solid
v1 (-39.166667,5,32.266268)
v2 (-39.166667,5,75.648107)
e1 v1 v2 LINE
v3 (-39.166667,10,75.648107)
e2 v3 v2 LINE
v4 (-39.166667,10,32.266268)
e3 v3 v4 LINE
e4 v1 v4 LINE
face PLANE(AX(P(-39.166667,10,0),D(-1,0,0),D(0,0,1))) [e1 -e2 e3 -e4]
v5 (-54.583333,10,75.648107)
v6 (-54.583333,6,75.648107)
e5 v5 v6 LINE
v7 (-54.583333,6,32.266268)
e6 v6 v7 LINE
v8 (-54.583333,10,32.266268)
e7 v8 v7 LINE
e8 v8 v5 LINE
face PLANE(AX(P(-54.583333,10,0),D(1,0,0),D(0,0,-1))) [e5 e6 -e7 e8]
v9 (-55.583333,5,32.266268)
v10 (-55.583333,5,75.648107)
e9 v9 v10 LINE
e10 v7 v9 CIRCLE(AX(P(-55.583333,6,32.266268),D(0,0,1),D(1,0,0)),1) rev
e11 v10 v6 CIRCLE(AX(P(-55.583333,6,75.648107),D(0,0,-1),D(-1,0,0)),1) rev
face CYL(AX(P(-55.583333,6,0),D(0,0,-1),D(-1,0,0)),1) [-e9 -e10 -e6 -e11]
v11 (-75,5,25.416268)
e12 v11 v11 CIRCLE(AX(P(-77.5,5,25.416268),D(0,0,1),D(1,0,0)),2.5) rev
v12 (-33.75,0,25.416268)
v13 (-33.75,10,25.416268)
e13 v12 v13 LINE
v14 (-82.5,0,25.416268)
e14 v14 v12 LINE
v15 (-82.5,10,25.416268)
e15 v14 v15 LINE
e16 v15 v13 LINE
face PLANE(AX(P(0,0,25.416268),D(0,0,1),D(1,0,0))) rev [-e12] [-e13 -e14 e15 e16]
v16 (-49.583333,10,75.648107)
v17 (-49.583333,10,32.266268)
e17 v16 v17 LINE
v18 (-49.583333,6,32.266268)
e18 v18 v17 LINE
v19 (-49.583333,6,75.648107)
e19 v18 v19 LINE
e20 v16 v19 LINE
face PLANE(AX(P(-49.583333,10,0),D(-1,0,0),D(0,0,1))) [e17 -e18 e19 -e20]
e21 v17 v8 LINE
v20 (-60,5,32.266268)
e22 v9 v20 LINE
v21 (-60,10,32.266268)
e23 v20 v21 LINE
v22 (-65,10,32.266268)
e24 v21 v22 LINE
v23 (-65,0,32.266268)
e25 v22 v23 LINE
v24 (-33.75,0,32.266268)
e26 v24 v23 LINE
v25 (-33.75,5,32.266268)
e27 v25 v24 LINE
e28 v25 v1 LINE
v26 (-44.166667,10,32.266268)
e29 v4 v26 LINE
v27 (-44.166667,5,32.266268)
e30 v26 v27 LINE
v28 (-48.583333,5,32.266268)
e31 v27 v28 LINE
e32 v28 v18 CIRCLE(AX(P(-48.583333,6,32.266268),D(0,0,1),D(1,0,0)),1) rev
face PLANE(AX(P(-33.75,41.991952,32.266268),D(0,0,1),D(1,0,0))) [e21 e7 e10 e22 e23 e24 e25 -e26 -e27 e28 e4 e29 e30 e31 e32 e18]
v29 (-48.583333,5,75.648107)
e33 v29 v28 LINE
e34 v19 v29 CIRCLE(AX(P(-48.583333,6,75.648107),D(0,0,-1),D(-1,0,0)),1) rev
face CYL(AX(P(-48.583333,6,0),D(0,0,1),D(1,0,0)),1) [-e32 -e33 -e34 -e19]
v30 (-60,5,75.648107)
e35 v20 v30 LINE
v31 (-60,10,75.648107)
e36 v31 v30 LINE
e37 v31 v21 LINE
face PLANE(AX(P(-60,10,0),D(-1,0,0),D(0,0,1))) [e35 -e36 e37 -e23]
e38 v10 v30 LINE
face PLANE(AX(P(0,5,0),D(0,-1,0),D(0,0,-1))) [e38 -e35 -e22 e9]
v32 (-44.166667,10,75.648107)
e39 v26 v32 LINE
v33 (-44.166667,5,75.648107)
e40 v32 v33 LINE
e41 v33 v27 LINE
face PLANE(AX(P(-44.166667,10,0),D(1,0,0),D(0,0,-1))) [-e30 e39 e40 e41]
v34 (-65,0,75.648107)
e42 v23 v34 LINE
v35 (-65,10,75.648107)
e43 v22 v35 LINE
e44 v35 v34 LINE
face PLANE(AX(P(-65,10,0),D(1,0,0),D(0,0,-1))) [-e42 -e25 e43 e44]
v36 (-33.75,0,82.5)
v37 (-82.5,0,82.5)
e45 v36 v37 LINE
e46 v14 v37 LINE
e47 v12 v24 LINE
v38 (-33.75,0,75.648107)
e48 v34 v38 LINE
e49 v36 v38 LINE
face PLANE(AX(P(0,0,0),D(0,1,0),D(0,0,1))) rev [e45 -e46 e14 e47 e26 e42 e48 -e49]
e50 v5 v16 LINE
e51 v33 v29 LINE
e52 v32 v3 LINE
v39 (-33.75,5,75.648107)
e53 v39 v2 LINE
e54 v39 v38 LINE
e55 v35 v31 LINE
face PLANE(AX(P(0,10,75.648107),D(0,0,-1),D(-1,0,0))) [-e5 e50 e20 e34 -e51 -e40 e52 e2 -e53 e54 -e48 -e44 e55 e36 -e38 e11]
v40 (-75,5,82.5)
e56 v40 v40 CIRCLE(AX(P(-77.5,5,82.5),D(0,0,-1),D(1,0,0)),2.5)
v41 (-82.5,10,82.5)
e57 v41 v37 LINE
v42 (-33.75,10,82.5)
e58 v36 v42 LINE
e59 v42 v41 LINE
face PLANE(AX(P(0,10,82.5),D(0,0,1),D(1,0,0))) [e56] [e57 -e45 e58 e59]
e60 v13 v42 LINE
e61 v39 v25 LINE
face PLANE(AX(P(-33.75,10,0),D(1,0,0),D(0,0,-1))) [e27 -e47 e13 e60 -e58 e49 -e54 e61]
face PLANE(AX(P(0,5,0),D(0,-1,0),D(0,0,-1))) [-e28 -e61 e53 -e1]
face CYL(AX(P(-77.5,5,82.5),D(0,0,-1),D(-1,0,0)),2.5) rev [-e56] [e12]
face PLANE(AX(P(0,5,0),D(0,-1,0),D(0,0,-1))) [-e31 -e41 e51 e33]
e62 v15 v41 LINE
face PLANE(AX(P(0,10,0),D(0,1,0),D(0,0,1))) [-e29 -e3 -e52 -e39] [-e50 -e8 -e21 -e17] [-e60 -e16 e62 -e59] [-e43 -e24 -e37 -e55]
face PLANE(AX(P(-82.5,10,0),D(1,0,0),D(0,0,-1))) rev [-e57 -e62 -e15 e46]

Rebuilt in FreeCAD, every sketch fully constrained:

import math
import FreeCAD as App
import Part
import Sketcher
from FreeCAD import Vector


def edges_at(feature, points):
    """Names of the edges that pass closest to the given points."""
    edges = feature.Shape.Edges
    near = lambda p: min(range(len(edges)), key=lambda i: edges[i].distToShape(Part.Vertex(*p))[0])
    return sorted({f"Edge{near(p) + 1}" for p in points})


def add_polygon(sketch, points):
    """Adds a closed chain of lines whose ends are joined by coincident constraints."""
    first, n = sketch.GeometryCount, len(points)
    for a, b in zip(points, points[1:] + points[:1]):
        sketch.addGeometry(Part.LineSegment(App.Vector(*a, 0), App.Vector(*b, 0)), False)
    for i in range(n):
        sketch.addConstraint(Sketcher.Constraint("Coincident", first + i, 2, first + (i + 1) % n, 1))

doc = App.newDocument("Part")
params = doc.addObject("Spreadsheet::Sheet", "Params")
for row, (alias, value) in enumerate([
    ("sketch1_diameter", "30 mm"),
    ("sketch1_radius", "16.5 mm"),
    ("sketch1_width", "10 mm"),
    ("sketch1_width2", "165 mm"),
    ("sketch1_width3", "5 mm"),
    ("pad1_length", "10 mm"),
    ("sketch2_diameter", "5 mm"),
    ("sketch3_width", "130 mm"),
    ("sketch3_height", "150 mm"),
    ("pocket2_length", "5 mm"),
    ("sketch4_width", "165 mm"),
    ("sketch4_width2", "116.25 mm"),
    ("sketch5_width", "31.25 mm"),
    ("sketch5_height", "6.85 mm"),
    ("pad2_length", "10 mm"),
    ("fillet_radius", "1 mm"),
], start=1):
    params.set(f"A{row}", alias)
    params.set(f"B{row}", "=" + value)
    params.setAlias(f"B{row}", alias)

body = doc.addObject("PartDesign::Body", "Body")

# Sketch on XZ plane
sketch1 = body.newObject("Sketcher::SketchObject", "Sketch")
sketch1.AttachmentSupport = (doc.getObject("XZ_Plane"), [""])
sketch1.MapMode = "FlatFace"
add_polygon(sketch1, [(-82.5, -82.5), (-82.5, -77.5), (-72.5, -77.5), (-72.5, -67.5), (-82.5, -67.5), (-82.5, 2.5), (-72.5, 2.5), (-72.5, 12.5), (-82.5, 12.5), (-82.5, 82.5), (82.5, 82.5), (82.5, 12.5), (72.5, 12.5), (72.5, 2.5), (82.5, 2.5), (82.5, -67.5), (72.5, -67.5), (72.5, -77.5), (82.5, -77.5), (82.5, -82.5)])  # lines 0-19
sketch1.addGeometry(Part.LineSegment(Vector(-12.9, 75.6, 0), Vector(-12.9, 10.9, 0)), False)  # 20
sketch1.addGeometry(Part.ArcOfCircle(Part.Circle(Vector(0, 0.6, 0), Vector(0, 0, 1), 16.5), math.radians(119), math.radians(142)), False)  # 21
sketch1.addGeometry(Part.LineSegment(Vector(-7.9, 15.1, 0), Vector(-7.9, 75.6, 0)), False)  # 22
sketch1.addGeometry(Part.LineSegment(Vector(-7.9, 75.6, 0), Vector(-12.9, 75.6, 0)), False)  # 23
sketch1.addGeometry(Part.LineSegment(Vector(2.5, 75.6, 0), Vector(-2.5, 75.6, 0)), False)  # 24
sketch1.addGeometry(Part.LineSegment(Vector(-2.5, 75.6, 0), Vector(-2.5, 17, 0)), False)  # 25
sketch1.addGeometry(Part.ArcOfCircle(Part.Circle(Vector(0, 0.6, 0), Vector(0, 0, 1), 16.5), math.radians(81.29), math.radians(98.71)), False)  # 26
sketch1.addGeometry(Part.LineSegment(Vector(2.5, 17, 0), Vector(2.5, 75.6, 0)), False)  # 27
sketch1.addGeometry(Part.LineSegment(Vector(12.9, 75.6, 0), Vector(7.9, 75.6, 0)), False)  # 28
sketch1.addGeometry(Part.LineSegment(Vector(7.9, 75.6, 0), Vector(7.9, 15.1, 0)), False)  # 29
sketch1.addGeometry(Part.ArcOfCircle(Part.Circle(Vector(0, 0.6, 0), Vector(0, 0, 1), 16.5), math.radians(38), math.radians(61)), False)  # 30
sketch1.addGeometry(Part.LineSegment(Vector(12.9, 10.9, 0), Vector(12.9, 75.6, 0)), False)  # 31
add_polygon(sketch1, [(-60, 75.6), (-65, 75.6), (-65, -74.4), (-60, -74.4)])  # lines 32-35
add_polygon(sketch1, [(-49.6, 75.6), (-54.6, 75.6), (-54.6, -74.4), (-49.6, -74.4)])  # lines 36-39
add_polygon(sketch1, [(-39.2, 75.6), (-44.2, 75.6), (-44.2, -74.4), (-39.2, -74.4)])  # lines 40-43
add_polygon(sketch1, [(-28.8, 75.6), (-33.8, 75.6), (-33.8, -74.4), (-28.8, -74.4)])  # lines 44-47
add_polygon(sketch1, [(-18.3, 75.6), (-23.3, 75.6), (-23.3, -74.4), (-18.3, -74.4)])  # lines 48-51
sketch1.addGeometry(Part.ArcOfCircle(Part.Circle(Vector(0, 0.6, 0), Vector(0, 0, 1), 16.5), math.radians(-142), math.radians(-119)), False)  # 52
sketch1.addGeometry(Part.LineSegment(Vector(-12.9, -9.6, 0), Vector(-12.9, -74.4, 0)), False)  # 53
sketch1.addGeometry(Part.LineSegment(Vector(-12.9, -74.4, 0), Vector(-7.9, -74.4, 0)), False)  # 54
sketch1.addGeometry(Part.LineSegment(Vector(-7.9, -74.4, 0), Vector(-7.9, -13.8, 0)), False)  # 55
sketch1.addGeometry(Part.Circle(Vector(0, 0.6, 0), Vector(0, 0, 1), 15), False)  # 56
add_polygon(sketch1, [(23.3, 75.6), (18.3, 75.6), (18.3, -74.4), (23.3, -74.4)])  # lines 57-60
add_polygon(sketch1, [(33.8, 75.6), (28.8, 75.6), (28.8, -74.4), (33.8, -74.4)])  # lines 61-64
add_polygon(sketch1, [(44.2, 75.6), (39.2, 75.6), (39.2, -74.4), (44.2, -74.4)])  # lines 65-68
add_polygon(sketch1, [(54.6, 75.6), (49.6, 75.6), (49.6, -74.4), (54.6, -74.4)])  # lines 69-72
add_polygon(sketch1, [(65, 75.6), (60, 75.6), (60, -74.4), (65, -74.4)])  # lines 73-76
sketch1.addGeometry(Part.ArcOfCircle(Part.Circle(Vector(0, 0.6, 0), Vector(0, 0, 1), 16.5), math.radians(-98.71), math.radians(-81.29)), False)  # 77
sketch1.addGeometry(Part.LineSegment(Vector(-2.5, -15.7, 0), Vector(-2.5, -74.4, 0)), False)  # 78
sketch1.addGeometry(Part.LineSegment(Vector(-2.5, -74.4, 0), Vector(2.5, -74.4, 0)), False)  # 79
sketch1.addGeometry(Part.LineSegment(Vector(2.5, -74.4, 0), Vector(2.5, -15.7, 0)), False)  # 80
sketch1.addGeometry(Part.LineSegment(Vector(7.9, -74.4, 0), Vector(12.9, -74.4, 0)), False)  # 81
sketch1.addGeometry(Part.LineSegment(Vector(12.9, -74.4, 0), Vector(12.9, -9.6, 0)), False)  # 82
sketch1.addGeometry(Part.ArcOfCircle(Part.Circle(Vector(0, 0.6, 0), Vector(0, 0, 1), 16.5), math.radians(-61), math.radians(-38)), False)  # 83
sketch1.addGeometry(Part.LineSegment(Vector(7.9, -13.8, 0), Vector(7.9, -74.4, 0)), False)  # 84
sketch1.addConstraint([
    Sketcher.Constraint("Coincident", 20, 2, 21, 2),
    Sketcher.Constraint("Coincident", 21, 1, 22, 1),
    Sketcher.Constraint("Coincident", 22, 2, 23, 1),
    Sketcher.Constraint("Coincident", 23, 2, 20, 1),
    Sketcher.Constraint("Coincident", 24, 2, 25, 1),
    Sketcher.Constraint("Coincident", 25, 2, 26, 2),
    Sketcher.Constraint("Coincident", 26, 1, 27, 1),
    Sketcher.Constraint("Coincident", 27, 2, 24, 1),
    Sketcher.Constraint("Coincident", 28, 2, 29, 1),
    Sketcher.Constraint("Coincident", 29, 2, 30, 2),
    Sketcher.Constraint("Coincident", 30, 1, 31, 1),
    Sketcher.Constraint("Coincident", 31, 2, 28, 1),
    Sketcher.Constraint("Coincident", 52, 1, 53, 1),
    Sketcher.Constraint("Coincident", 53, 2, 54, 1),
    Sketcher.Constraint("Coincident", 54, 2, 55, 1),
    Sketcher.Constraint("Coincident", 55, 2, 52, 2),
    Sketcher.Constraint("Coincident", 77, 1, 78, 1),
    Sketcher.Constraint("Coincident", 78, 2, 79, 1),
    Sketcher.Constraint("Coincident", 79, 2, 80, 1),
    Sketcher.Constraint("Coincident", 80, 2, 77, 2),
    Sketcher.Constraint("Coincident", 81, 2, 82, 1),
    Sketcher.Constraint("Coincident", 82, 2, 83, 2),
    Sketcher.Constraint("Coincident", 83, 1, 84, 1),
    Sketcher.Constraint("Coincident", 84, 2, 81, 1),
    Sketcher.Constraint("Vertical", 0),
    Sketcher.Constraint("Horizontal", 1),
    Sketcher.Constraint("Vertical", 2),
    Sketcher.Constraint("Horizontal", 3),
    Sketcher.Constraint("Vertical", 4),
    Sketcher.Constraint("Horizontal", 5),
    Sketcher.Constraint("Vertical", 6),
    Sketcher.Constraint("Horizontal", 7),
    Sketcher.Constraint("Vertical", 8),
    Sketcher.Constraint("Horizontal", 9),
    Sketcher.Constraint("Vertical", 10),
    Sketcher.Constraint("Horizontal", 11),
    Sketcher.Constraint("Vertical", 12),
    Sketcher.Constraint("Horizontal", 13),
    Sketcher.Constraint("Vertical", 14),
    Sketcher.Constraint("Horizontal", 15),
    Sketcher.Constraint("Vertical", 16),
    Sketcher.Constraint("Horizontal", 17),
    Sketcher.Constraint("Vertical", 18),
    Sketcher.Constraint("Horizontal", 19),
    Sketcher.Constraint("Vertical", 20),
    Sketcher.Constraint("Vertical", 22),
    Sketcher.Constraint("Horizontal", 23),
    Sketcher.Constraint("Horizontal", 24),
    Sketcher.Constraint("Vertical", 25),
    Sketcher.Constraint("Vertical", 27),
    Sketcher.Constraint("Horizontal", 28),
    Sketcher.Constraint("Vertical", 29),
    Sketcher.Constraint("Vertical", 31),
    Sketcher.Constraint("Horizontal", 32),
    Sketcher.Constraint("Vertical", 33),
    Sketcher.Constraint("Horizontal", 34),
    Sketcher.Constraint("Vertical", 35),
    Sketcher.Constraint("Horizontal", 36),
    Sketcher.Constraint("Vertical", 37),
    Sketcher.Constraint("Horizontal", 38),
    Sketcher.Constraint("Vertical", 39),
    Sketcher.Constraint("Horizontal", 40),
    Sketcher.Constraint("Vertical", 41),
    Sketcher.Constraint("Horizontal", 42),
    Sketcher.Constraint("Vertical", 43),
    Sketcher.Constraint("Horizontal", 44),
    Sketcher.Constraint("Vertical", 45),
    Sketcher.Constraint("Horizontal", 46),
    Sketcher.Constraint("Vertical", 47),
    Sketcher.Constraint("Horizontal", 48),
    Sketcher.Constraint("Vertical", 49),
    Sketcher.Constraint("Horizontal", 50),
    Sketcher.Constraint("Vertical", 51),
    Sketcher.Constraint("Vertical", 53),
    Sketcher.Constraint("Horizontal", 54),
    Sketcher.Constraint("Vertical", 55),
    Sketcher.Constraint("Horizontal", 57),
    Sketcher.Constraint("Vertical", 58),
    Sketcher.Constraint("Horizontal", 59),
    Sketcher.Constraint("Vertical", 60),
    Sketcher.Constraint("Horizontal", 61),
    Sketcher.Constraint("Vertical", 62),
    Sketcher.Constraint("Horizontal", 63),
    Sketcher.Constraint("Vertical", 64),
    Sketcher.Constraint("Horizontal", 65),
    Sketcher.Constraint("Vertical", 66),
    Sketcher.Constraint("Horizontal", 67),
    Sketcher.Constraint("Vertical", 68),
    Sketcher.Constraint("Horizontal", 69),
    Sketcher.Constraint("Vertical", 70),
    Sketcher.Constraint("Horizontal", 71),
    Sketcher.Constraint("Vertical", 72),
    Sketcher.Constraint("Horizontal", 73),
    Sketcher.Constraint("Vertical", 74),
    Sketcher.Constraint("Horizontal", 75),
    Sketcher.Constraint("Vertical", 76),
    Sketcher.Constraint("Vertical", 78),
    Sketcher.Constraint("Horizontal", 79),
    Sketcher.Constraint("Vertical", 80),
    Sketcher.Constraint("Horizontal", 81),
    Sketcher.Constraint("Vertical", 82),
    Sketcher.Constraint("Vertical", 84),
    Sketcher.Constraint("Coincident", 26, 3, 21, 3),
    Sketcher.Constraint("Coincident", 30, 3, 21, 3),
    Sketcher.Constraint("Coincident", 52, 3, 21, 3),
    Sketcher.Constraint("Coincident", 56, 3, 21, 3),
    Sketcher.Constraint("Coincident", 77, 3, 21, 3),
    Sketcher.Constraint("Coincident", 83, 3, 21, 3),
    Sketcher.Constraint("Equal", 21, 26),
    Sketcher.Constraint("Equal", 26, 30),
    Sketcher.Constraint("Equal", 30, 52),
    Sketcher.Constraint("Equal", 52, 77),
    Sketcher.Constraint("Equal", 77, 83),
    Sketcher.Constraint("Symmetric", 8, 2, 18, 2, -1, 1),
    Sketcher.Constraint("Symmetric", 7, 2, 10, 2, -2),
    Sketcher.Constraint("Symmetric", 5, 2, 12, 2, -2),
    Sketcher.Constraint("Symmetric", 3, 2, 14, 2, -2),
    Sketcher.Constraint("Symmetric", 1, 2, 16, 2, -2),
    Sketcher.Constraint("Symmetric", 25, 2, 26, 1, -2),
    Sketcher.Constraint("Symmetric", 22, 2, 28, 2, -2),
    Sketcher.Constraint("Symmetric", 51, 2, 57, 2, -2),
    Sketcher.Constraint("Symmetric", 49, 2, 59, 2, -2),
    Sketcher.Constraint("Symmetric", 47, 2, 61, 2, -2),
    Sketcher.Constraint("Symmetric", 45, 2, 63, 2, -2),
    Sketcher.Constraint("Symmetric", 43, 2, 65, 2, -2),
    Sketcher.Constraint("Symmetric", 41, 2, 67, 2, -2),
    Sketcher.Constraint("Symmetric", 39, 2, 69, 2, -2),
    Sketcher.Constraint("Symmetric", 37, 2, 71, 2, -2),
    Sketcher.Constraint("Symmetric", 35, 2, 73, 2, -2),
    Sketcher.Constraint("Symmetric", 33, 2, 75, 2, -2),
    Sketcher.Constraint("Symmetric", 53, 2, 81, 2, -2),
    Sketcher.Constraint("Horizontal", 23, 2, 24, 2),
    Sketcher.Constraint("Horizontal", 20, 2, 30, 1),
    Sketcher.Constraint("Horizontal", 31, 2, 32, 2),
    Sketcher.Constraint("Horizontal", 35, 2, 36, 2),
    Sketcher.Constraint("Horizontal", 34, 2, 37, 2),
    Sketcher.Constraint("Horizontal", 39, 2, 40, 2),
    Sketcher.Constraint("Horizontal", 38, 2, 41, 2),
    Sketcher.Constraint("Horizontal", 43, 2, 44, 2),
    Sketcher.Constraint("Horizontal", 42, 2, 45, 2),
    Sketcher.Constraint("Horizontal", 47, 2, 48, 2),
    Sketcher.Constraint("Horizontal", 46, 2, 49, 2),
    Sketcher.Constraint("Horizontal", 50, 2, 53, 2),
    Sketcher.Constraint("Horizontal", 75, 2, 78, 2),
    Sketcher.Constraint("Horizontal", 77, 1, 80, 2),
    Sketcher.Constraint("Horizontal", 55, 2, 83, 1),
    Sketcher.Constraint("Vertical", 0, 2, 3, 2),
    Sketcher.Constraint("Vertical", 2, 2, 5, 2),
    Sketcher.Constraint("Vertical", 4, 2, 7, 2),
    Sketcher.Constraint("Vertical", 23, 2, 52, 1),
    Sketcher.Constraint("Vertical", 22, 2, 54, 2),
    Sketcher.Constraint("Vertical", 25, 2, 77, 1),
    Sketcher.Constraint("Equal", 23, 24),
    Sketcher.Constraint("Equal", 28, 32),
    Sketcher.Constraint("Equal", 34, 36),
    Sketcher.Constraint("Equal", 38, 40),
    Sketcher.Constraint("Equal", 42, 44),
    Sketcher.Constraint("Equal", 46, 48),
    Sketcher.Constraint("Equal", 81, 0),
    Sketcher.Constraint("Equal", 17, 2),
    Sketcher.Constraint("Equal", 2, 6),
    Sketcher.Constraint("Equal", 4, 8),
    Sketcher.Constraint("Equal", 31, 53),
    Sketcher.Constraint("Diameter", 56, 30.0),
    Sketcher.Constraint("Radius", 21, 16.5),
    Sketcher.Constraint("DistanceX", 1, 1, 1, 2, 10.0),
    Sketcher.Constraint("DistanceX", 9, 1, 9, 2, 165.0),
    Sketcher.Constraint("DistanceX", 23, 2, 23, 1, 5.0),
    Sketcher.Constraint("DistanceY", 4, 1, 4, 2, 70.0),
    Sketcher.Constraint("DistanceY", 33, 2, 33, 1, 150.0),
    Sketcher.Constraint("DistanceX", 32, 2, -1, 1, 65.0),
    Sketcher.Constraint("DistanceX", 44, 2, -1, 1, 33.75),
    Sketcher.Constraint("DistanceY", 77, 1, -1, 1, 15.661399),
    Sketcher.Constraint("DistanceY", 20, 2, 20, 1, 64.733076),
    Sketcher.Constraint("DistanceX", 36, 2, -1, 1, 54.583333),
    Sketcher.Constraint("DistanceX", 40, 2, -1, 1, 44.166667),
    Sketcher.Constraint("DistanceX", 48, 2, -1, 1, 23.333333),
])
sketch1.setExpression("Constraints[223]", "Params.sketch1_diameter")
sketch1.setExpression("Constraints[224]", "Params.sketch1_radius")
sketch1.setExpression("Constraints[225]", "Params.sketch1_width")
sketch1.setExpression("Constraints[226]", "Params.sketch1_width2")
sketch1.setExpression("Constraints[227]", "Params.sketch1_width3")
pad1 = body.newObject("PartDesign::Pad", "Pad")
pad1.Profile = sketch1
pad1.setExpression("Length", "Params.pad1_length")
pad1.Reversed = True

# Sketch on XY plane
sketch2 = body.newObject("Sketcher::SketchObject", "Sketch001")
sketch2.AttachmentSupport = (doc.getObject("XY_Plane"), [""])
sketch2.MapMode = "FlatFace"
sketch2.AttachmentOffset = App.Placement(Vector(0, 0, 12.5), App.Rotation())
sketch2.addGeometry([
    Part.Circle(Vector(77.5, 5, 0), Vector(0, 0, 1), 2.5),
    Part.Circle(Vector(-77.5, 5, 0), Vector(0, 0, 1), 2.5),
], False)
sketch2.addConstraint([
    Sketcher.Constraint("Equal", 0, 1),
    Sketcher.Constraint("Symmetric", 0, 3, 1, 3, -2),
    Sketcher.Constraint("Diameter", 0, 5.0),
    Sketcher.Constraint("DistanceY", -1, 1, 0, 3, 5.0),
    Sketcher.Constraint("DistanceX", 1, 3, 0, 3, 155.0),
])
sketch2.setExpression("Constraints[2]", "Params.sketch2_diameter")
pocket1 = body.newObject("PartDesign::Pocket", "Pocket")
pocket1.Profile = sketch2
pocket1.Type = "ThroughAll"
pocket1.Midplane = True

# Sketch on XZ plane
sketch3 = body.newObject("Sketcher::SketchObject", "Sketch002")
sketch3.AttachmentSupport = (doc.getObject("XZ_Plane"), [""])
sketch3.MapMode = "FlatFace"
add_polygon(sketch3, [(-65, 76), (-65, -74), (65, -74), (65, 76)])  # lines 0-3
sketch3.addConstraint([
    Sketcher.Constraint("Vertical", 0),
    Sketcher.Constraint("Horizontal", 1),
    Sketcher.Constraint("Vertical", 2),
    Sketcher.Constraint("Horizontal", 3),
    Sketcher.Constraint("DistanceX", 1, 1, 1, 2, 130.0),
    Sketcher.Constraint("DistanceY", 0, 2, 0, 1, 150.0),
    Sketcher.Constraint("DistanceX", 0, 2, -1, 1, 65.0),
    Sketcher.Constraint("DistanceY", 0, 2, -1, 1, 74.351893),
])
sketch3.setExpression("Constraints[8]", "Params.sketch3_width")
sketch3.setExpression("Constraints[9]", "Params.sketch3_height")
pocket2 = body.newObject("PartDesign::Pocket", "Pocket001")
pocket2.Profile = sketch3
pocket2.setExpression("Length", "Params.pocket2_length")

# Sketch on XZ plane
sketch4 = body.newObject("Sketcher::SketchObject", "Sketch003")
sketch4.AttachmentSupport = (doc.getObject("XZ_Plane"), [""])
sketch4.MapMode = "FlatFace"
sketch4.AttachmentOffset = App.Placement(Vector(0, 0, -10), App.Rotation())
add_polygon(sketch4, [(-34, 25), (-34, 82), (82, 82), (82, -82), (-82, -82), (-82, 25)])  # lines 0-5
sketch4.addConstraint([
    Sketcher.Constraint("Vertical", 0),
    Sketcher.Constraint("Horizontal", 1),
    Sketcher.Constraint("Vertical", 2),
    Sketcher.Constraint("Horizontal", 3),
    Sketcher.Constraint("Vertical", 4),
    Sketcher.Constraint("Horizontal", 5),
    Sketcher.Constraint("Symmetric", 1, 2, 3, 2, -1, 1),
    Sketcher.Constraint("Equal", 3, 2),
    Sketcher.Constraint("DistanceX", 3, 2, 3, 1, 165.0),
    Sketcher.Constraint("DistanceX", 1, 1, 1, 2, 116.25),
    Sketcher.Constraint("DistanceY", 0, 1, 0, 2, 57.083732),
])
sketch4.setExpression("Constraints[14]", "Params.sketch4_width")
sketch4.setExpression("Constraints[15]", "Params.sketch4_width2")
pocket3 = body.newObject("PartDesign::Pocket", "Pocket002")
pocket3.Profile = sketch4
pocket3.Type = "ThroughAll"
pocket3.Reversed = True

# Sketch on XZ plane
sketch5 = body.newObject("Sketcher::SketchObject", "Sketch004")
sketch5.AttachmentSupport = (doc.getObject("XZ_Plane"), [""])
sketch5.MapMode = "FlatFace"
add_polygon(sketch5, [(-65, 32), (-65, 25), (-34, 25), (-34, 32)])  # lines 0-3
sketch5.addConstraint([
    Sketcher.Constraint("Vertical", 0),
    Sketcher.Constraint("Horizontal", 1),
    Sketcher.Constraint("Vertical", 2),
    Sketcher.Constraint("Horizontal", 3),
    Sketcher.Constraint("DistanceX", 0, 2, -1, 1, 65.0),
    Sketcher.Constraint("DistanceX", 1, 1, 1, 2, 31.25),
    Sketcher.Constraint("DistanceY", 0, 2, 0, 1, 6.85),
    Sketcher.Constraint("DistanceY", -1, 1, 0, 2, 25.416268),
])
sketch5.setExpression("Constraints[9]", "Params.sketch5_width")
sketch5.setExpression("Constraints[10]", "Params.sketch5_height")
pad2 = body.newObject("PartDesign::Pad", "Pad001")
pad2.Profile = sketch5
pad2.setExpression("Length", "Params.pad2_length")
pad2.Reversed = True
doc.recompute()

fillet = body.newObject("PartDesign::Fillet", "Fillet")
fillet.Base = (pad2, edges_at(pad2, [(-54.583, 5, 53.957), (-49.583, 5, 53.957)]))
fillet.setExpression("Radius", "Params.fillet_radius")

doc.recompute()
